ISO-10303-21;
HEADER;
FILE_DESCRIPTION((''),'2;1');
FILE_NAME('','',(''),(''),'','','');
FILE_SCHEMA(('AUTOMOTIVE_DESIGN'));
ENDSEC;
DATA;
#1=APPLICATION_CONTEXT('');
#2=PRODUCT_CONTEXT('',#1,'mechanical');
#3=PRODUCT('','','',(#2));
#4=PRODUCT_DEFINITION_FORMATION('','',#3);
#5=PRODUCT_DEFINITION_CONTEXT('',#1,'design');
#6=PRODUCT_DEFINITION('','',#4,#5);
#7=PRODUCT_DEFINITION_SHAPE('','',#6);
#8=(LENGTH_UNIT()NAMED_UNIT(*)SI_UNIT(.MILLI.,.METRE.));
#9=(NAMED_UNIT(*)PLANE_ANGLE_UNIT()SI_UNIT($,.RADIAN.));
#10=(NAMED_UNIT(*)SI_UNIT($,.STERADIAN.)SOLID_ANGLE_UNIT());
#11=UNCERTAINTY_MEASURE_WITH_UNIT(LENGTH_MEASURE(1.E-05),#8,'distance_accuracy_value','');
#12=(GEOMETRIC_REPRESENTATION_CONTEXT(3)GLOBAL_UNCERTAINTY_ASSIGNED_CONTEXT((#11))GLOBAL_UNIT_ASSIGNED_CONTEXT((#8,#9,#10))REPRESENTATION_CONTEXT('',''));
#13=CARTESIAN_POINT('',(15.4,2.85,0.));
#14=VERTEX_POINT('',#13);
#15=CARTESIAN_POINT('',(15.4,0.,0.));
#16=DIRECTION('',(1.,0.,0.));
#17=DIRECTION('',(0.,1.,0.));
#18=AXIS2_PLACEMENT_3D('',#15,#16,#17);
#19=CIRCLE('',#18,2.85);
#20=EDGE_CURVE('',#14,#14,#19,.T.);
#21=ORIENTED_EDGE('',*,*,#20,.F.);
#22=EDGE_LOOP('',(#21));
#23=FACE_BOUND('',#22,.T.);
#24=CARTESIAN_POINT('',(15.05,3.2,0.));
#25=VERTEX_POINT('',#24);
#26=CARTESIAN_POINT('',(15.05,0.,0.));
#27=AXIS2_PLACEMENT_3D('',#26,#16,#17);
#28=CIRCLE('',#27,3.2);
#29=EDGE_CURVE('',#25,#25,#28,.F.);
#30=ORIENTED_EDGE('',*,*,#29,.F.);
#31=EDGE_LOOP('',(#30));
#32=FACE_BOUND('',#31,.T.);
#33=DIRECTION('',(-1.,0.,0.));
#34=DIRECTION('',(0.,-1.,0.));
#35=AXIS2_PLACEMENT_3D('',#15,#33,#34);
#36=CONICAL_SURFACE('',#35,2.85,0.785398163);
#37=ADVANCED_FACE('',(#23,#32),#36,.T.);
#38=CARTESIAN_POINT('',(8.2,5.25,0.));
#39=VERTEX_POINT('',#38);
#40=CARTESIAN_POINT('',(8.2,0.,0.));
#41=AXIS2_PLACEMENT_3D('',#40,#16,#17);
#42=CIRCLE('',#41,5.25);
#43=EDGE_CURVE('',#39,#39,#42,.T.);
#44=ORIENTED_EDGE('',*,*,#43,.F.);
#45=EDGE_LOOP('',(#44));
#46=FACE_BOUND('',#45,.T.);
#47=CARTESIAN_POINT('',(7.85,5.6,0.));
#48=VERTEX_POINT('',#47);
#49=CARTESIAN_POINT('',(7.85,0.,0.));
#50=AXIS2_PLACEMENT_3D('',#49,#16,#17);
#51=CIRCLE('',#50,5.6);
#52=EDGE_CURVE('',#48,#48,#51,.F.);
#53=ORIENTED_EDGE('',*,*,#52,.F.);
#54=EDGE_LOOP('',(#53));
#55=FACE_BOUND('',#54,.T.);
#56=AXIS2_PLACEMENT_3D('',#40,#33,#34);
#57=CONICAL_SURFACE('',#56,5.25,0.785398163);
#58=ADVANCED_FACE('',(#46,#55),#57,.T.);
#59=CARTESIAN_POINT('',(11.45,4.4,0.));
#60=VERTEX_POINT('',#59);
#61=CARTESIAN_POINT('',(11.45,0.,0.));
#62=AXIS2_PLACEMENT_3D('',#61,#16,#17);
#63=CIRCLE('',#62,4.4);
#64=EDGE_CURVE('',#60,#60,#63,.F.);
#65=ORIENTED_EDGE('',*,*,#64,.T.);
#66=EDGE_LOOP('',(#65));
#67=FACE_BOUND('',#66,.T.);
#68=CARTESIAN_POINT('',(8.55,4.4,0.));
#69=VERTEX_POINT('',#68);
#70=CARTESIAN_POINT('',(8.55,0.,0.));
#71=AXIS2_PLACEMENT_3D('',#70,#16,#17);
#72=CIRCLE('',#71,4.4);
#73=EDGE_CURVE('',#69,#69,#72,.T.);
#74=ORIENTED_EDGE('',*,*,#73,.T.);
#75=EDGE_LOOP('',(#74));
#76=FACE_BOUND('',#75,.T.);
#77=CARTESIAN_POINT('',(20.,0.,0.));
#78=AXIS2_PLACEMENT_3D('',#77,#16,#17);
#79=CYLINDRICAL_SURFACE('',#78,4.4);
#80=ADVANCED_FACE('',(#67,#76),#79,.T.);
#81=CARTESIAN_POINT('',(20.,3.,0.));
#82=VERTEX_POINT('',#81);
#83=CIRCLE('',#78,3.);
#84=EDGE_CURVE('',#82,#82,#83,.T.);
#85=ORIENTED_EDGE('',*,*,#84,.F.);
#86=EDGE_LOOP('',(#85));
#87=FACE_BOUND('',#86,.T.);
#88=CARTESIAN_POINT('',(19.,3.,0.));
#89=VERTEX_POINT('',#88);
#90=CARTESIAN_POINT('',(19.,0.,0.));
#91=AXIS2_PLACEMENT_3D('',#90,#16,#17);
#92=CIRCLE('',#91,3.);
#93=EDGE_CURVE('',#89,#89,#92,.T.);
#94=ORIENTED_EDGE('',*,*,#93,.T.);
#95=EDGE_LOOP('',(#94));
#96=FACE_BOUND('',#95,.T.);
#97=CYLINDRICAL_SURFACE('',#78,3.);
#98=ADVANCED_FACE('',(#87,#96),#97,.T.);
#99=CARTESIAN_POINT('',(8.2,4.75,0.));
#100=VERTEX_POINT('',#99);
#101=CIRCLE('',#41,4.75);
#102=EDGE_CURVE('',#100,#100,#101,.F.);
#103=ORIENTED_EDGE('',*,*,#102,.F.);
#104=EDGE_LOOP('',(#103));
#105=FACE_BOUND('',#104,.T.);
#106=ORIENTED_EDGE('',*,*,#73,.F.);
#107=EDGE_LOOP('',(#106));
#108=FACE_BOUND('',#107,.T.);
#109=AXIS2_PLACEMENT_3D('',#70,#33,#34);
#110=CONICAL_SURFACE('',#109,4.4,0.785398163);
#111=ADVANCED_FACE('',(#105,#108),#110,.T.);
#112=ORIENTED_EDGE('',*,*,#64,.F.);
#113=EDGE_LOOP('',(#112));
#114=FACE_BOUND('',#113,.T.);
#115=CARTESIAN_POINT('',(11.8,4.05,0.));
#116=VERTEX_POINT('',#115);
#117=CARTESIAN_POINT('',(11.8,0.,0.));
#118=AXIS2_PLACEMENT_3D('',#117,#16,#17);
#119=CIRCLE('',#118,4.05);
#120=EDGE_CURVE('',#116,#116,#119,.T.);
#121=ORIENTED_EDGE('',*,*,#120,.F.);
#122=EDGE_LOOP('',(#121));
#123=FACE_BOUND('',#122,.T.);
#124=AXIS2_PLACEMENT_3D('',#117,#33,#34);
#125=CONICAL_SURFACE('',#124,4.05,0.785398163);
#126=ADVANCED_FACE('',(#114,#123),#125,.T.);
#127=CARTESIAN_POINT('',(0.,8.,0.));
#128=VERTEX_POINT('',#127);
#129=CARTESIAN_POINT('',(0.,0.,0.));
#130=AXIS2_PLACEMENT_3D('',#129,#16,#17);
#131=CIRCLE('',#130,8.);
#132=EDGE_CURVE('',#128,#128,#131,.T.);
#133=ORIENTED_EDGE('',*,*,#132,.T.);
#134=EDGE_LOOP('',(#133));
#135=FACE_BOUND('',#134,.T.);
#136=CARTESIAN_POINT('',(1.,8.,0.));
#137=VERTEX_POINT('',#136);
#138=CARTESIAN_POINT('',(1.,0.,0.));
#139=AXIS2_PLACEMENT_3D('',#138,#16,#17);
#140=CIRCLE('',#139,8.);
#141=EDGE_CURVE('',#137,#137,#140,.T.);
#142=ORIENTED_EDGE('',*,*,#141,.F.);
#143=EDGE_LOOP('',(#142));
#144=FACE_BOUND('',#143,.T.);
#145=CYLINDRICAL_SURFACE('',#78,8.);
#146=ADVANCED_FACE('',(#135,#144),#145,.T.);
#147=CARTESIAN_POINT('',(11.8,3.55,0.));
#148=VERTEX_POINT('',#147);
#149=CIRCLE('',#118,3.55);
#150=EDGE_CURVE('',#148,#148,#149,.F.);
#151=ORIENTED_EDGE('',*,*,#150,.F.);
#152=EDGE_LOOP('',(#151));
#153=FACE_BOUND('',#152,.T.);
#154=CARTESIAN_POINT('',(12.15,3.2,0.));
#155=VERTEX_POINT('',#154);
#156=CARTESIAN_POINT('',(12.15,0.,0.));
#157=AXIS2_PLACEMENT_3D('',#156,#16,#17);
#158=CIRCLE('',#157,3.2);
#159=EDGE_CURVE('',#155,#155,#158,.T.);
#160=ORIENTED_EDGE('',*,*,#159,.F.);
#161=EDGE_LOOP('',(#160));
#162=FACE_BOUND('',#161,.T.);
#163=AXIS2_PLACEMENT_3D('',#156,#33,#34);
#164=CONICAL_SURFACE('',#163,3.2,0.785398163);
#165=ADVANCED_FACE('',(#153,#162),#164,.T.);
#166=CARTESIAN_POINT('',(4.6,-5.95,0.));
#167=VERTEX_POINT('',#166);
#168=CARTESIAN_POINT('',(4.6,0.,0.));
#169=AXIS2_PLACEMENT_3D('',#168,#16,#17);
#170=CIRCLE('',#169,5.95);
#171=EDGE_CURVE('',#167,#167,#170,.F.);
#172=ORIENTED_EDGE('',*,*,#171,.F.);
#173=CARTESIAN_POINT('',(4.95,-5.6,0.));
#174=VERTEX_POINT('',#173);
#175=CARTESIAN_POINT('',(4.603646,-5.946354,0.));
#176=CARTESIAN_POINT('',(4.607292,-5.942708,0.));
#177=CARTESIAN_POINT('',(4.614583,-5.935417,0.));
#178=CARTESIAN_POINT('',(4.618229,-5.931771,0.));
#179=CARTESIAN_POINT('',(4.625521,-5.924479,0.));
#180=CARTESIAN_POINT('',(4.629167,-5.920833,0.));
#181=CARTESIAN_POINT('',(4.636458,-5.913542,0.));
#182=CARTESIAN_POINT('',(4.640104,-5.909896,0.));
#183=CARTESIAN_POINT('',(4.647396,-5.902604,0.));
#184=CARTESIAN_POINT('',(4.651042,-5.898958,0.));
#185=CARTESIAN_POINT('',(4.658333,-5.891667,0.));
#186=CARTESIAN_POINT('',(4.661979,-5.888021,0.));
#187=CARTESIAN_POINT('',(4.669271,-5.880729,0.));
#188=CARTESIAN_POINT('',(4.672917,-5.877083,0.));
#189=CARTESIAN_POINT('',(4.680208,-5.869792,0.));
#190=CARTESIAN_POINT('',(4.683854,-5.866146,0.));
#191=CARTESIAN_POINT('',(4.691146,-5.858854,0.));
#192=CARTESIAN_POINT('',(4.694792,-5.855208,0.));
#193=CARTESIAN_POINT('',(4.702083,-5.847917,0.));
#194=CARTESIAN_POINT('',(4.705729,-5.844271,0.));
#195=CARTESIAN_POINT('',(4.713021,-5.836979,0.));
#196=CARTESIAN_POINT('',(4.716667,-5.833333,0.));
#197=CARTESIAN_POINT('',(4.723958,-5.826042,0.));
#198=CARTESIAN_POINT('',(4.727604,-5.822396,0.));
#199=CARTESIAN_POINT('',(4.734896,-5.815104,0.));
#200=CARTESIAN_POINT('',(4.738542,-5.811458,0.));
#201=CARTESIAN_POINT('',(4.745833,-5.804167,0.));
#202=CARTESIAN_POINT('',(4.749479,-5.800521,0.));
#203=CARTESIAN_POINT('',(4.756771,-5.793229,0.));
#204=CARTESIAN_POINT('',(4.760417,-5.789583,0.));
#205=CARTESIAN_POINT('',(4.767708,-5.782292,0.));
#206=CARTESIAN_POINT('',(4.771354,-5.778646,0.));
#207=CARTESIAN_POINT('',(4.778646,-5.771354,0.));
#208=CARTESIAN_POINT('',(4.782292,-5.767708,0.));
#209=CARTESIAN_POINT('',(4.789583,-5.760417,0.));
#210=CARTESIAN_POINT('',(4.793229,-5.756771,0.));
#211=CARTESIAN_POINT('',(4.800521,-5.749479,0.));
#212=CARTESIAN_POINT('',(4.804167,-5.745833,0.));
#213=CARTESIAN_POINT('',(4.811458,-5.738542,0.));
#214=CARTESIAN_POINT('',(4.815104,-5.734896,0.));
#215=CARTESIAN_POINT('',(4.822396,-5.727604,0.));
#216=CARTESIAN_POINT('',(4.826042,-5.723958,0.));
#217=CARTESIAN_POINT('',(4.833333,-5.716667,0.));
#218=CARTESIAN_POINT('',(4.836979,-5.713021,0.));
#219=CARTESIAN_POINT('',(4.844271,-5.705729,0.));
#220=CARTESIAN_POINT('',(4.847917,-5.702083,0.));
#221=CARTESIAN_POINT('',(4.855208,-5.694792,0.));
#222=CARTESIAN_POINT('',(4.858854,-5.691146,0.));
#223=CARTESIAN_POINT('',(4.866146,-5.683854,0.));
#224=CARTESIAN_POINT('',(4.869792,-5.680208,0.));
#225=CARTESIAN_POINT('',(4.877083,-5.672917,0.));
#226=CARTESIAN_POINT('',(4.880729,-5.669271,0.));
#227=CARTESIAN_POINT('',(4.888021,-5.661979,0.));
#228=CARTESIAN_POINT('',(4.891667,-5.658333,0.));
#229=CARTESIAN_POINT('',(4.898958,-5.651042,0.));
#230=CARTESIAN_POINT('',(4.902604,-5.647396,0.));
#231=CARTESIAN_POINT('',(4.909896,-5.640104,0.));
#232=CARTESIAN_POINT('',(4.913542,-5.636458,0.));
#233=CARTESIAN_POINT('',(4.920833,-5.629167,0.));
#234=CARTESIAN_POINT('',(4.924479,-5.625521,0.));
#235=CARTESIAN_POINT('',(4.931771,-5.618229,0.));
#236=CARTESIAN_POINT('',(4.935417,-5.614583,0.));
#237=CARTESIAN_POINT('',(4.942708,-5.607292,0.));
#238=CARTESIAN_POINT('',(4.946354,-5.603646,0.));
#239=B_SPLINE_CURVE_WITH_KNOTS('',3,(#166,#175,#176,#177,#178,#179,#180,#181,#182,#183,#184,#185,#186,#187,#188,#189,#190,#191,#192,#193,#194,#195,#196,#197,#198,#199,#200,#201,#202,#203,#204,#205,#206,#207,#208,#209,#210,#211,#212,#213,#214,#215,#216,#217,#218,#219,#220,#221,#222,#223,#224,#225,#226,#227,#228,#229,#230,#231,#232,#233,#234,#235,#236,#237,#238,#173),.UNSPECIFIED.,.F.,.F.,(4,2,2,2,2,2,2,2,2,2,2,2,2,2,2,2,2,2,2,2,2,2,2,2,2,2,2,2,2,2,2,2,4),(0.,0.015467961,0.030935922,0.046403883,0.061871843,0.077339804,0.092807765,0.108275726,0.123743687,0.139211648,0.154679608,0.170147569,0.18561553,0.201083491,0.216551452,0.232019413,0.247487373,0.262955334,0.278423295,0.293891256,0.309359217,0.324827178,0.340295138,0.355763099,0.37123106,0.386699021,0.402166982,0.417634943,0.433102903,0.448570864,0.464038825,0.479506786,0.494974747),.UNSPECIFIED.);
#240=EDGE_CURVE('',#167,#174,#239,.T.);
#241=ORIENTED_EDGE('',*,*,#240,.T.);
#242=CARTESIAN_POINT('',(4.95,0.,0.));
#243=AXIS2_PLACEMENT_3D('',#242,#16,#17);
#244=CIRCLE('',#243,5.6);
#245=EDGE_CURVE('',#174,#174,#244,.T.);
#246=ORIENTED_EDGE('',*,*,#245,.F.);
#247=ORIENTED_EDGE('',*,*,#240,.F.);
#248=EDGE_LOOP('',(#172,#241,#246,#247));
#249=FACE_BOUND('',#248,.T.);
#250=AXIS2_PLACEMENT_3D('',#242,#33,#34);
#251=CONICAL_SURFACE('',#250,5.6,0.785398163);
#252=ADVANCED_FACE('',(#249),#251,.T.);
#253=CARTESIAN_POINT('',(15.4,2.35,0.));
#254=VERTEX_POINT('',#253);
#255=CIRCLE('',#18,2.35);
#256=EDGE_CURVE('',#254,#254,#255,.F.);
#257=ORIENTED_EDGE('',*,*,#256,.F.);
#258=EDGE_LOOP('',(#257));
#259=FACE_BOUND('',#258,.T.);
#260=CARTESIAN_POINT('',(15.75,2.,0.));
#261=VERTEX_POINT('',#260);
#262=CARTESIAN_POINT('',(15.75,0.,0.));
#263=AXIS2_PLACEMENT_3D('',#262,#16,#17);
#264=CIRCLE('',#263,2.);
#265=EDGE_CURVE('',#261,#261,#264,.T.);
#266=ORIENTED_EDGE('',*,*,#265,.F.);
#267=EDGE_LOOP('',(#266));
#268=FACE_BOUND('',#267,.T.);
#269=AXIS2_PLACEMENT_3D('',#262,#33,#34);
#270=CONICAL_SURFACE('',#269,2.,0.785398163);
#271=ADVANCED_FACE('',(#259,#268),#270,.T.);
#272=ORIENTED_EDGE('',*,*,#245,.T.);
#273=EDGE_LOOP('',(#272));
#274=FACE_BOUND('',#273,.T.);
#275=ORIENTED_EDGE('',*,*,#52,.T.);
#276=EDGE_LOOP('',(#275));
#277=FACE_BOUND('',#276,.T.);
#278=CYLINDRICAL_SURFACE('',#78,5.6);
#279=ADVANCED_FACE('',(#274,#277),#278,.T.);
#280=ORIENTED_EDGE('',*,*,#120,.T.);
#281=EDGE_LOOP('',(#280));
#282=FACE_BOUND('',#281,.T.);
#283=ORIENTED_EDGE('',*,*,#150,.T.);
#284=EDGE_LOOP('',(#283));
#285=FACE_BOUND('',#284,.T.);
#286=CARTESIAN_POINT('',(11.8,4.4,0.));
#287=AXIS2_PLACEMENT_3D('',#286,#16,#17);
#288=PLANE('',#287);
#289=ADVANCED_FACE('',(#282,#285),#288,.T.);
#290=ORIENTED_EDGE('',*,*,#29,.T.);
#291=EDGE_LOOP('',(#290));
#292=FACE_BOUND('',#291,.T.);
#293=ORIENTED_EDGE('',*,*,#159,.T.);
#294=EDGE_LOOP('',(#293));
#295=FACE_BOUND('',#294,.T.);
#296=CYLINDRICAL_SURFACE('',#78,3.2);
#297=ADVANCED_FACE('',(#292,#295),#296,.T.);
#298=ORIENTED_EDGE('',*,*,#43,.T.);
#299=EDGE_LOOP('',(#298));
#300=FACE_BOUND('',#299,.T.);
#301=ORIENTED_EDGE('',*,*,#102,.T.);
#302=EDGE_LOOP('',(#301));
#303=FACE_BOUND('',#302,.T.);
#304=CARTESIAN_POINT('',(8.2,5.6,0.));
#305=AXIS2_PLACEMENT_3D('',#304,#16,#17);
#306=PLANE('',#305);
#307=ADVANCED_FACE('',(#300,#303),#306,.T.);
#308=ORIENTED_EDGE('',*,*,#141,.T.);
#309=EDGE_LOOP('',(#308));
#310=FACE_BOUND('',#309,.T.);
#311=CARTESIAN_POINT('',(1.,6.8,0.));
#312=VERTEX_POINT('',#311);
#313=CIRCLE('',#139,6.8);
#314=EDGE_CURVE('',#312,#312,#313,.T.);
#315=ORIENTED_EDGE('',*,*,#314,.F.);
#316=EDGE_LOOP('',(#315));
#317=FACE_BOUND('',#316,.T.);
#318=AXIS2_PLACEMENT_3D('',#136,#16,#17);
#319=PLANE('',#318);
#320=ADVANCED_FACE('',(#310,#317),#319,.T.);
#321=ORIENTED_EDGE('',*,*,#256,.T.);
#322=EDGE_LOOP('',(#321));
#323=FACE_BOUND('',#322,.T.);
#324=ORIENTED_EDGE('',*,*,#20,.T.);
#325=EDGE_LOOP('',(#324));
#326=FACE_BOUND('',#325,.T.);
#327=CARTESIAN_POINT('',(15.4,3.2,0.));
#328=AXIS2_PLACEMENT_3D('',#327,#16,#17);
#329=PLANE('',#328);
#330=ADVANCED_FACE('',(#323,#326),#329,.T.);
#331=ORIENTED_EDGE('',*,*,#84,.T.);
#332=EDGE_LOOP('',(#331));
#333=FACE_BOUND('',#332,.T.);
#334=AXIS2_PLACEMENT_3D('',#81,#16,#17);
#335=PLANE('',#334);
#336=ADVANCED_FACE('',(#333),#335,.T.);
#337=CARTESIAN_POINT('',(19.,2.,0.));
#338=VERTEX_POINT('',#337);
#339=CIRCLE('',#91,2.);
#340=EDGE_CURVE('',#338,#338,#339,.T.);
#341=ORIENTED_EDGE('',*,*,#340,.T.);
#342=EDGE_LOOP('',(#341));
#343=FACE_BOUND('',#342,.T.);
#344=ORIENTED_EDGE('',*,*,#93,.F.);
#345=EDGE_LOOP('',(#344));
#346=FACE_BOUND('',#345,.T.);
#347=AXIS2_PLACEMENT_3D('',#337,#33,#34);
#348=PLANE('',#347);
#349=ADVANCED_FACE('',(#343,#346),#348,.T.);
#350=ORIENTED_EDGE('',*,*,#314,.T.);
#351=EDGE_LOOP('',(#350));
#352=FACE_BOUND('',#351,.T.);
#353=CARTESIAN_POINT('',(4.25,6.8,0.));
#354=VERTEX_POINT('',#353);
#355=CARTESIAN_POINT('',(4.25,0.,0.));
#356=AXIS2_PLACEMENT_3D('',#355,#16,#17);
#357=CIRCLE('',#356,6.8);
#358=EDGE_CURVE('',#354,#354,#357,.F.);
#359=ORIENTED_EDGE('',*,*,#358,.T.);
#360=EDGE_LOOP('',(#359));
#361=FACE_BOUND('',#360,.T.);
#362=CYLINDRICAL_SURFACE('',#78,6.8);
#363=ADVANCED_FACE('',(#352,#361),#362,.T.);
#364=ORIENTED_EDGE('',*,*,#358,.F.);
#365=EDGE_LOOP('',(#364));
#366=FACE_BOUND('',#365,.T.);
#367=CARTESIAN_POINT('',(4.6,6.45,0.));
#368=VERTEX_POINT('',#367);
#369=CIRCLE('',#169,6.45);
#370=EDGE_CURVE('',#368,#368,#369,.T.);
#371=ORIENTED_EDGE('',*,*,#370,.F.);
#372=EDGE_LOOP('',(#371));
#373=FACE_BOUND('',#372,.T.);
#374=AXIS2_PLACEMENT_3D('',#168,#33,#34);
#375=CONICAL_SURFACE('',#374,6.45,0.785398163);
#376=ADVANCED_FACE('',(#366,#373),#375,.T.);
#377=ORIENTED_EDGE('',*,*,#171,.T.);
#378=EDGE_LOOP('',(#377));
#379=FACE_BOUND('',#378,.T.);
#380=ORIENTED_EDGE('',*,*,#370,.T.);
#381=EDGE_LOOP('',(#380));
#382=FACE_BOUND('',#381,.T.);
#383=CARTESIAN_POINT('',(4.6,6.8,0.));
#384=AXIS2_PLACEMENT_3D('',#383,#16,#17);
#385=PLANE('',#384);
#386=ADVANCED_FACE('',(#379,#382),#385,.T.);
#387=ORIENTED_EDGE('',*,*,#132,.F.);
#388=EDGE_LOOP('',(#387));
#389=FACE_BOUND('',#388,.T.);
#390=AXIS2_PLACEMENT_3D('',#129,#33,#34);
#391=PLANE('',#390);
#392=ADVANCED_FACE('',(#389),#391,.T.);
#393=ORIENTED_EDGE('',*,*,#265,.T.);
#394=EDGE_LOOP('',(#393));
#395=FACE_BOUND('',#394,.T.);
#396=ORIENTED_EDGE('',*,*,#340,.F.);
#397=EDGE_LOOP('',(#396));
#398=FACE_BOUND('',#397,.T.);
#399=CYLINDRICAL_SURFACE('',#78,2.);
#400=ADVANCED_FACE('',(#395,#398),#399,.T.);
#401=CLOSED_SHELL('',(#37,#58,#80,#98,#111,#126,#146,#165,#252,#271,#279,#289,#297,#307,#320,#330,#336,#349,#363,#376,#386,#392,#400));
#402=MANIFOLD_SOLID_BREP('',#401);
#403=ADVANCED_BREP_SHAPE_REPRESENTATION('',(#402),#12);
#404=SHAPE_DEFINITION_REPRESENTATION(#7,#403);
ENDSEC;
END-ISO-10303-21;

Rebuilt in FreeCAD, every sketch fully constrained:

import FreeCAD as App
import Part
import Sketcher
from FreeCAD import Vector


def edges_at(feature, points):
    """Names of the edges that pass closest to the given points."""
    edges = feature.Shape.Edges
    near = lambda p: min(range(len(edges)), key=lambda i: edges[i].distToShape(Part.Vertex(*p))[0])
    return sorted({f"Edge{near(p) + 1}" for p in points})

doc = App.newDocument("Part")
body = doc.addObject("PartDesign::Body", "Body")

# Sketch on XY plane
sketch1 = body.newObject("Sketcher::SketchObject", "Sketch")
sketch1.AttachmentSupport = (doc.getObject("XY_Plane"), [""])
sketch1.MapMode = "FlatFace"
sketch1.addGeometry([
    Part.LineSegment(Vector(0, 8, 0), Vector(0, 0, 0)),  # 0
    Part.LineSegment(Vector(0, 0, 0), Vector(20, 0, 0)),  # 1
    Part.LineSegment(Vector(20, 0, 0), Vector(20, 3, 0)),  # 2
    Part.LineSegment(Vector(20, 3, 0), Vector(19, 3, 0)),  # 3
    Part.LineSegment(Vector(19, 3, 0), Vector(19, 2, 0)),  # 4
    Part.LineSegment(Vector(19, 2, 0), Vector(15.4, 2, 0)),  # 5
    Part.LineSegment(Vector(15.4, 2, 0), Vector(15.4, 3.2, 0)),  # 6
    Part.LineSegment(Vector(15.4, 3.2, 0), Vector(11.8, 3.2, 0)),  # 7
    Part.LineSegment(Vector(11.8, 3.2, 0), Vector(11.8, 4.4, 0)),  # 8
    Part.LineSegment(Vector(11.8, 4.4, 0), Vector(8.2, 4.4, 0)),  # 9
    Part.LineSegment(Vector(8.2, 4.4, 0), Vector(8.2, 5.6, 0)),  # 10
    Part.LineSegment(Vector(8.2, 5.6, 0), Vector(4.6, 5.6, 0)),  # 11
    Part.LineSegment(Vector(4.6, 5.6, 0), Vector(4.6, 6.8, 0)),  # 12
    Part.LineSegment(Vector(4.6, 6.8, 0), Vector(1, 6.8, 0)),  # 13
    Part.LineSegment(Vector(1, 6.8, 0), Vector(1, 8, 0)),  # 14
    Part.LineSegment(Vector(1, 8, 0), Vector(0, 8, 0)),  # 15
], False)
sketch1.addConstraint([
    Sketcher.Constraint("Coincident", 0, 2, 1, 1),
    Sketcher.Constraint("Coincident", 1, 2, 2, 1),
    Sketcher.Constraint("Coincident", 2, 2, 3, 1),
    Sketcher.Constraint("Coincident", 3, 2, 4, 1),
    Sketcher.Constraint("Coincident", 4, 2, 5, 1),
    Sketcher.Constraint("Coincident", 5, 2, 6, 1),
    Sketcher.Constraint("Coincident", 6, 2, 7, 1),
    Sketcher.Constraint("Coincident", 7, 2, 8, 1),
    Sketcher.Constraint("Coincident", 8, 2, 9, 1),
    Sketcher.Constraint("Coincident", 9, 2, 10, 1),
    Sketcher.Constraint("Coincident", 10, 2, 11, 1),
    Sketcher.Constraint("Coincident", 11, 2, 12, 1),
    Sketcher.Constraint("Coincident", 12, 2, 13, 1),
    Sketcher.Constraint("Coincident", 13, 2, 14, 1),
    Sketcher.Constraint("Coincident", 14, 2, 15, 1),
    Sketcher.Constraint("Coincident", 15, 2, 0, 1),
    Sketcher.Constraint("Vertical", 0),
    Sketcher.Constraint("Horizontal", 1),
    Sketcher.Constraint("Vertical", 2),
    Sketcher.Constraint("Horizontal", 3),
    Sketcher.Constraint("Vertical", 4),
    Sketcher.Constraint("Horizontal", 5),
    Sketcher.Constraint("Vertical", 6),
    Sketcher.Constraint("Horizontal", 7),
    Sketcher.Constraint("Vertical", 8),
    Sketcher.Constraint("Horizontal", 9),
    Sketcher.Constraint("Vertical", 10),
    Sketcher.Constraint("Horizontal", 11),
    Sketcher.Constraint("Vertical", 12),
    Sketcher.Constraint("Horizontal", 13),
    Sketcher.Constraint("Vertical", 14),
    Sketcher.Constraint("Horizontal", 15),
    Sketcher.Constraint("Coincident", 0, 2, -1, 1),
    Sketcher.Constraint("Equal", 5, 7),
    Sketcher.Constraint("Equal", 7, 9),
    Sketcher.Constraint("Equal", 9, 11),
    Sketcher.Constraint("Equal", 11, 13),
    Sketcher.Constraint("Equal", 3, 15),
    Sketcher.Constraint("Equal", 15, 4),
    Sketcher.Constraint("Equal", 6, 8),
    Sketcher.Constraint("Equal", 8, 10),
    Sketcher.Constraint("Equal", 10, 12),
    Sketcher.Constraint("Equal", 12, 14),
    Sketcher.Constraint("DistanceX", 1, 1, 1, 2, 20.0),
    Sketcher.Constraint("DistanceX", 3, 2, 3, 1, 1.0),
    Sketcher.Constraint("DistanceY", 0, 2, 0, 1, 8.0),
    Sketcher.Constraint("DistanceY", 2, 1, 2, 2, 3.0),
])
revolution = body.newObject("PartDesign::Revolution", "Revolution")
revolution.Profile = sketch1
revolution.ReferenceAxis = (sketch1, ["H_Axis"])
revolution.Angle = 360
doc.recompute()

chamfer = body.newObject("PartDesign::Chamfer", "Chamfer")
chamfer.Base = (revolution, edges_at(revolution, [
    (15.4, -2, 0),
    (15.4, -3.2, 0),
    (11.8, -3.2, 0),
    (11.8, -4.4, 0),
    (8.2, -4.4, 0),
    (8.2, -5.6, 0),
    (4.6, -5.6, 0),
    (4.6, -6.8, 0),
]))
chamfer.Size = 0.35

doc.recompute()
